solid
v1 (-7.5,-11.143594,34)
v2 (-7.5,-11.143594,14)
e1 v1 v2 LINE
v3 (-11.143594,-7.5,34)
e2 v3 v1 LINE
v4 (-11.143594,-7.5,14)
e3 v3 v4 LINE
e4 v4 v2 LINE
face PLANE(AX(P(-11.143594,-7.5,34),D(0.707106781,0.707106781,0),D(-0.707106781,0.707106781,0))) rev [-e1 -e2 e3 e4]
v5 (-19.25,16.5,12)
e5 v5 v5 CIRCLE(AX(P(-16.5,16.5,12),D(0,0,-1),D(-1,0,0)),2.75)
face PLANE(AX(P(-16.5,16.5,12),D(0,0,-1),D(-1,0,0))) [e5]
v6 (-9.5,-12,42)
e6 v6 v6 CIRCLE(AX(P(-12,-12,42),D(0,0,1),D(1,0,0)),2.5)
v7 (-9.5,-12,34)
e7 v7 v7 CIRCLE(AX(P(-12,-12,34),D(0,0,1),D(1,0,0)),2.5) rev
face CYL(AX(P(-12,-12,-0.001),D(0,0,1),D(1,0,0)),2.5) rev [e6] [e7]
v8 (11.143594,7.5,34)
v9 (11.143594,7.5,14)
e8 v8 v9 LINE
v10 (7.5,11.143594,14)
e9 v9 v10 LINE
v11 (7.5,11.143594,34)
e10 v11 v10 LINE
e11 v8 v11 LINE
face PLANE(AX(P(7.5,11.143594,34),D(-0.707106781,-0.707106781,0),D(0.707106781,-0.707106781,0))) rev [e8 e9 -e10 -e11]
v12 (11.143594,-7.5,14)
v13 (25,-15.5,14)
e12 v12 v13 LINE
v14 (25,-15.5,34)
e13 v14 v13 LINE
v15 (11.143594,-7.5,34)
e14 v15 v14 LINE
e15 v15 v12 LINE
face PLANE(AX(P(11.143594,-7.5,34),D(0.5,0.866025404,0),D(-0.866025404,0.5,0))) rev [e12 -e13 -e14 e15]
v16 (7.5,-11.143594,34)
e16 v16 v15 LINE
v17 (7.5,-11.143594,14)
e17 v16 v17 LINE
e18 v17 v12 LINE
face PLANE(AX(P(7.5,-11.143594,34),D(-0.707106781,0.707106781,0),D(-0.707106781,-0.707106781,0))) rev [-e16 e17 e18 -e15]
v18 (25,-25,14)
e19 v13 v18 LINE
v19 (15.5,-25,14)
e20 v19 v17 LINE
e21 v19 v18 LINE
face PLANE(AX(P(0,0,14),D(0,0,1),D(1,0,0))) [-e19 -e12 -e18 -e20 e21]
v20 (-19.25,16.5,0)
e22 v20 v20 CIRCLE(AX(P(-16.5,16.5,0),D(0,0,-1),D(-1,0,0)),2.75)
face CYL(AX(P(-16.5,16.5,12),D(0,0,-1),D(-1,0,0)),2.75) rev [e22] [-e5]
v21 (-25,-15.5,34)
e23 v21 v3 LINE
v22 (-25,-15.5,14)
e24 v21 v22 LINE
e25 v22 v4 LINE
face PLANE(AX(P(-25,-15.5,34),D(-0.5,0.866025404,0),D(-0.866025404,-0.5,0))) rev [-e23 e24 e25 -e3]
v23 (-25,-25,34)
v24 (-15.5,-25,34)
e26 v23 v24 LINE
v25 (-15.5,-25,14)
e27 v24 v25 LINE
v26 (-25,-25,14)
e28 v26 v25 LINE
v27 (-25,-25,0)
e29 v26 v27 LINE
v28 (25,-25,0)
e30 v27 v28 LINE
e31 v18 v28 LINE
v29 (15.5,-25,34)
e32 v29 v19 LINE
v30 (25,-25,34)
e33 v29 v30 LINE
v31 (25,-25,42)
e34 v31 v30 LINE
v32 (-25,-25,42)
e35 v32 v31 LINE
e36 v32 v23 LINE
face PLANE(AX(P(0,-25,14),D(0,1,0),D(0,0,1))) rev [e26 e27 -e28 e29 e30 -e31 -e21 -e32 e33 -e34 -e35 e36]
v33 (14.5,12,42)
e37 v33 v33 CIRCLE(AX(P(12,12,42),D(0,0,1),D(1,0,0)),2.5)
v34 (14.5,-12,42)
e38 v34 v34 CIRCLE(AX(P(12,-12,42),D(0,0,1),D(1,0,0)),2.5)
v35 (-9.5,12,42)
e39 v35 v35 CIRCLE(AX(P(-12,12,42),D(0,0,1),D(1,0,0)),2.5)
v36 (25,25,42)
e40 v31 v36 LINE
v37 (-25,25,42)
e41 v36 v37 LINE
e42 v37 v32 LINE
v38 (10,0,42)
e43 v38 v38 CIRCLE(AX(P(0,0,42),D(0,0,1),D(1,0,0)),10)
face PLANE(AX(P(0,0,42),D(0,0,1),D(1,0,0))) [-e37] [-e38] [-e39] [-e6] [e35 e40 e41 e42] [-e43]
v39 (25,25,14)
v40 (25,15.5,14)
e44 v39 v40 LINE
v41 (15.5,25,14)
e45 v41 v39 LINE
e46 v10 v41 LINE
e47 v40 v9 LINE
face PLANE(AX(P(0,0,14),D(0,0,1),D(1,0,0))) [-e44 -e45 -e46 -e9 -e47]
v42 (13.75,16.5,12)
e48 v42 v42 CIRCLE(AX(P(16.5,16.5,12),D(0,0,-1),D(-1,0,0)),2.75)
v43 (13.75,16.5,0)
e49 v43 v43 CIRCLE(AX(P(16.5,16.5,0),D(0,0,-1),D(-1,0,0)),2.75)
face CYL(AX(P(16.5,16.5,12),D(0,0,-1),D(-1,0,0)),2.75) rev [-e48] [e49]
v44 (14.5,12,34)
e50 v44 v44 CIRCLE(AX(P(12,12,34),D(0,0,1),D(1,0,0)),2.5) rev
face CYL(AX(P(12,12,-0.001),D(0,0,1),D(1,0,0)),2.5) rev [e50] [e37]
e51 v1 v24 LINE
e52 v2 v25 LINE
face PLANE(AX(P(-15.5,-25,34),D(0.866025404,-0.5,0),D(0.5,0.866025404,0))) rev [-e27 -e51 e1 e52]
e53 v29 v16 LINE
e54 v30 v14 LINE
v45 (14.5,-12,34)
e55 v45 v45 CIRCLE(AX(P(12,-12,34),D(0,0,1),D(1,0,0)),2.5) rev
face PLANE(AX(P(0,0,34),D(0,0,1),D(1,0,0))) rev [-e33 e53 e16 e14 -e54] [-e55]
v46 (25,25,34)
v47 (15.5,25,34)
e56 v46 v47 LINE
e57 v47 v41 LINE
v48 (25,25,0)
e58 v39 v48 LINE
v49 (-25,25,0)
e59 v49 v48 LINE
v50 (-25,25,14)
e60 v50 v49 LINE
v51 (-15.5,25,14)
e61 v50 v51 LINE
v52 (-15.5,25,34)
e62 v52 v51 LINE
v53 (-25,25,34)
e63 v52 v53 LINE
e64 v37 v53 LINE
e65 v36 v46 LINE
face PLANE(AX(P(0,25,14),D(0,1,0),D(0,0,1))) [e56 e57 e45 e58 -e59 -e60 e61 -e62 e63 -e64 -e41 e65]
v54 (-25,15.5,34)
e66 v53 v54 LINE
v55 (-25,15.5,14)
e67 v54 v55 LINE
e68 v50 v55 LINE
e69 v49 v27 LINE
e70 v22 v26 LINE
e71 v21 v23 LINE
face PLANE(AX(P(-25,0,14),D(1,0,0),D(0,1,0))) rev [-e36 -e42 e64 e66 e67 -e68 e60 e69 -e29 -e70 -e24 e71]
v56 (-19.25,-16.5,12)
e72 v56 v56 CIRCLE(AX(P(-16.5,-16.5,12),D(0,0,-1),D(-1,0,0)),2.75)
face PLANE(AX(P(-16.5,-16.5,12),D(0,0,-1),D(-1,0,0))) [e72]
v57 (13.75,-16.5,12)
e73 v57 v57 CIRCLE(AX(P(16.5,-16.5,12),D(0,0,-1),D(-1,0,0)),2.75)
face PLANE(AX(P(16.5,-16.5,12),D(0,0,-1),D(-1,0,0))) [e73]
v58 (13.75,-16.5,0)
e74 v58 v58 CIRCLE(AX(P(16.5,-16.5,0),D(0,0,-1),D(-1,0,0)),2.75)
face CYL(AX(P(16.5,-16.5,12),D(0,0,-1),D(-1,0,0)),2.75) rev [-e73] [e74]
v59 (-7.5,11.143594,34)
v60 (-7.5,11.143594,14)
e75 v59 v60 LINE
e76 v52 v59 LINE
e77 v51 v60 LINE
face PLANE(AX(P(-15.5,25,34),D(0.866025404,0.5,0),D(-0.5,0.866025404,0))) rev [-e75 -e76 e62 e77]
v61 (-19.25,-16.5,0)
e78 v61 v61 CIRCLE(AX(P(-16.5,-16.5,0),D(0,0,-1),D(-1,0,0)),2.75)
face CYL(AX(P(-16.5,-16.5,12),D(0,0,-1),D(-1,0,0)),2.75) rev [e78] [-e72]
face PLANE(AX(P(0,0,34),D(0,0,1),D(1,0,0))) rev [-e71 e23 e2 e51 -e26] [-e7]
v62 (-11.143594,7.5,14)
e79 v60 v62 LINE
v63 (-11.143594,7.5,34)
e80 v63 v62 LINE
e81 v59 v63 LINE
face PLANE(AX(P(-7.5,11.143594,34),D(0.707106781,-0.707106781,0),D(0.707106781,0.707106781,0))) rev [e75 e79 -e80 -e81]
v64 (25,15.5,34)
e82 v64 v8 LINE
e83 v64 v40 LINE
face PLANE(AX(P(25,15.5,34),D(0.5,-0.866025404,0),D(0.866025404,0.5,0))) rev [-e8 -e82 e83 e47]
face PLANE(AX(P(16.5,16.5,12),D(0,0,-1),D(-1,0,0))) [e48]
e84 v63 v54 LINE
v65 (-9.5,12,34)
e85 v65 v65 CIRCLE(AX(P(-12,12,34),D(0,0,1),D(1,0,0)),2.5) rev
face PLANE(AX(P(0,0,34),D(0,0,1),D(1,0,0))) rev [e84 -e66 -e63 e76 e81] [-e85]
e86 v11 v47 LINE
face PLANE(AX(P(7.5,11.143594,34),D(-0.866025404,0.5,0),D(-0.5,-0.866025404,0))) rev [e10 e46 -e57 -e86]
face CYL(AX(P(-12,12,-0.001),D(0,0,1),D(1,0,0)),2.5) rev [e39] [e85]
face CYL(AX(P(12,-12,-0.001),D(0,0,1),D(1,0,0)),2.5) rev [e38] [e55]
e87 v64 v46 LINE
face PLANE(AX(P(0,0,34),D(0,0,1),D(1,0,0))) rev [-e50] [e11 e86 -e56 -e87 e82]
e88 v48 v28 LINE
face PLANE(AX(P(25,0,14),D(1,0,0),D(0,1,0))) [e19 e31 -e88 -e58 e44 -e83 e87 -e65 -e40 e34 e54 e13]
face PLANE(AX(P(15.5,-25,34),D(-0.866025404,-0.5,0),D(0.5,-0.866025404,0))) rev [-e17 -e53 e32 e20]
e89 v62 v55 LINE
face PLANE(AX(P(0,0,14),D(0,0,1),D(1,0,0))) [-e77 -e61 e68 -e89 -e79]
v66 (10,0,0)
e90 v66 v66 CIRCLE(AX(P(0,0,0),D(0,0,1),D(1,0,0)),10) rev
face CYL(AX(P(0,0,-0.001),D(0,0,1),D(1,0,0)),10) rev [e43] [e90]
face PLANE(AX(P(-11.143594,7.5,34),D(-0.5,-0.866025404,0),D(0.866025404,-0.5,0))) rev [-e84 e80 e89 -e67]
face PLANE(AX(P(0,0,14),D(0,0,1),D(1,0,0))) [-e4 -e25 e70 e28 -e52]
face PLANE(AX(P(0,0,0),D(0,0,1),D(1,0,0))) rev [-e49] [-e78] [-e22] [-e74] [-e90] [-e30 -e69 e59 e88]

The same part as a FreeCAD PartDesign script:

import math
import FreeCAD as App
import Part
import Sketcher
Q = App.Units.Quantity


def add_polygon(sketch, points):
    """Adds a closed chain of lines whose ends are joined by coincident constraints."""
    first, n = sketch.GeometryCount, len(points)
    for a, b in zip(points, points[1:] + points[:1]):
        sketch.addGeometry(Part.LineSegment(App.Vector(*a, 0), App.Vector(*b, 0)), False)
    for i in range(n):
        sketch.addConstraint(Sketcher.Constraint("Coincident", first + i, 2, first + (i + 1) % n, 1))

doc = App.newDocument("Part")
body = doc.addObject("PartDesign::Body", "Body")

# Sketch on XY plane
sketch1 = body.newObject("Sketcher::SketchObject", "Sketch")
sketch1.AttachmentSupport = (doc.getObject("XY_Plane"), [""])
sketch1.MapMode = "FlatFace"
add_polygon(sketch1, [(-25, 25), (-25, -25), (25, -25), (25, 25)])  # lines 0-3
sketch1.addConstraint(Sketcher.Constraint("Vertical", 0))
sketch1.addConstraint(Sketcher.Constraint("Horizontal", 1))
sketch1.addConstraint(Sketcher.Constraint("Vertical", 2))
sketch1.addConstraint(Sketcher.Constraint("Horizontal", 3))
sketch1.addConstraint(Sketcher.Constraint("Symmetric", 0, 2, 2, 2, -1, 1))
sketch1.addConstraint(Sketcher.Constraint("Equal", 3, 0))
sketch1.addConstraint(Sketcher.Constraint("DistanceX", 1, 1, 1, 2, Q("50 mm")))
pad1 = body.newObject("PartDesign::Pad", "Pad")
pad1.Profile = sketch1
pad1.Length = 14

# Sketch on XY plane
sketch2 = body.newObject("Sketcher::SketchObject", "Sketch001")
sketch2.AttachmentSupport = (doc.getObject("XY_Plane"), [""])
sketch2.MapMode = "FlatFace"
sketch2.addGeometry(Part.Circle(App.Vector(16.5, 16.5, 0), App.Vector(0, 0, 1), 2.8), False)
sketch2.addGeometry(Part.Circle(App.Vector(-16.5, 16.5, 0), App.Vector(0, 0, 1), 2.8), False)
sketch2.addGeometry(Part.Circle(App.Vector(-16.5, -16.5, 0), App.Vector(0, 0, 1), 2.8), False)
sketch2.addGeometry(Part.Circle(App.Vector(16.5, -16.5, 0), App.Vector(0, 0, 1), 2.8), False)
sketch2.addConstraint(Sketcher.Constraint("Equal", 0, 1))
sketch2.addConstraint(Sketcher.Constraint("Equal", 1, 2))
sketch2.addConstraint(Sketcher.Constraint("Equal", 2, 3))
sketch2.addConstraint(Sketcher.Constraint("Symmetric", 0, 3, 2, 3, -1, 1))
sketch2.addConstraint(Sketcher.Constraint("Symmetric", 1, 3, 3, 3, -1, 1))
sketch2.addConstraint(Sketcher.Constraint("Symmetric", 0, 3, 1, 3, -2))
sketch2.addConstraint(Sketcher.Constraint("Diameter", 0, Q("5.5 mm")))
sketch2.addConstraint(Sketcher.Constraint("DistanceX", 1, 3, 0, 3, Q("33 mm")))
sketch2.addConstraint(Sketcher.Constraint("DistanceY", 2, 3, 1, 3, Q("33 mm")))
pocket1 = body.newObject("PartDesign::Pocket", "Pocket")
pocket1.Profile = sketch2
pocket1.Length = 12
pocket1.Reversed = True

# Sketch on XY plane
sketch3 = body.newObject("Sketcher::SketchObject", "Sketch002")
sketch3.AttachmentSupport = (doc.getObject("XY_Plane"), [""])
sketch3.MapMode = "FlatFace"
sketch3.AttachmentOffset = App.Placement(App.Vector(0, 0, 14), App.Rotation())
add_polygon(sketch3, [(25, 16), (11, 8), (8, 11), (16, 25), (-16, 25), (-8, 11), (-11, 8), (-25, 16), (-25, -16), (-11, -8), (-8, -11), (-16, -25), (16, -25), (8, -11), (11, -8), (25, -16)])  # lines 0-15
sketch3.addConstraint(Sketcher.Constraint("Horizontal", 3))
sketch3.addConstraint(Sketcher.Constraint("Vertical", 7))
sketch3.addConstraint(Sketcher.Constraint("Horizontal", 11))
sketch3.addConstraint(Sketcher.Constraint("Vertical", 15))
sketch3.addConstraint(Sketcher.Constraint("Symmetric", 0, 2, 8, 2, -1, 1))
sketch3.addConstraint(Sketcher.Constraint("Symmetric", 1, 2, 9, 2, -1, 1))
sketch3.addConstraint(Sketcher.Constraint("Symmetric", 2, 2, 10, 2, -1, 1))
sketch3.addConstraint(Sketcher.Constraint("Symmetric", 4, 2, 12, 2, -1, 1))
sketch3.addConstraint(Sketcher.Constraint("Symmetric", 5, 2, 13, 2, -1, 1))
sketch3.addConstraint(Sketcher.Constraint("Symmetric", 6, 2, 14, 2, -1, 1))
sketch3.addConstraint(Sketcher.Constraint("Symmetric", 1, 2, 4, 2, -2))
sketch3.addConstraint(Sketcher.Constraint("Symmetric", 0, 2, 5, 2, -2))
sketch3.addConstraint(Sketcher.Constraint("Perpendicular", 0, 4))
sketch3.addConstraint(Sketcher.Constraint("Perpendicular", 1, 5))
sketch3.addConstraint(Sketcher.Constraint("Perpendicular", 2, 6))
sketch3.addConstraint(Sketcher.Constraint("Perpendicular", 4, 8))
sketch3.addConstraint(Sketcher.Constraint("Perpendicular", 8, 12))
sketch3.addConstraint(Sketcher.Constraint("Horizontal", 7, 2, 14, 2))
sketch3.addConstraint(Sketcher.Constraint("Equal", 11, 7))
sketch3.addConstraint(Sketcher.Constraint("Equal", 0, 2))
sketch3.addConstraint(Sketcher.Constraint("DistanceX", 3, 2, 3, 1, Q("31 mm")))
sketch3.addConstraint(Sketcher.Constraint("Angle", 0, Q("-150 deg")))
sketch3.addConstraint(Sketcher.Constraint("Distance", 0, Q("16 mm")))
sketch3.addConstraint(Sketcher.Constraint("DistanceY", -1, 1, 2, 2, Q("25 mm")))
pad2 = body.newObject("PartDesign::Pad", "Pad001")
pad2.Profile = sketch3
pad2.Length = 20

# Sketch on XY plane
sketch4 = body.newObject("Sketcher::SketchObject", "Sketch003")
sketch4.AttachmentSupport = (doc.getObject("XY_Plane"), [""])
sketch4.MapMode = "FlatFace"
sketch4.AttachmentOffset = App.Placement(App.Vector(0, 0, 34), App.Rotation())
add_polygon(sketch4, [(-25, 25), (-25, -25), (25, -25), (25, 25)])  # lines 0-3
sketch4.addConstraint(Sketcher.Constraint("Vertical", 0))
sketch4.addConstraint(Sketcher.Constraint("Horizontal", 1))
sketch4.addConstraint(Sketcher.Constraint("Vertical", 2))
sketch4.addConstraint(Sketcher.Constraint("Horizontal", 3))
sketch4.addConstraint(Sketcher.Constraint("Symmetric", 0, 2, 2, 2, -1, 1))
sketch4.addConstraint(Sketcher.Constraint("Equal", 3, 0))
sketch4.addConstraint(Sketcher.Constraint("DistanceX", 1, 1, 1, 2, Q("50 mm")))
pad3 = body.newObject("PartDesign::Pad", "Pad002")
pad3.Profile = sketch4
pad3.Length = 8

# Sketch on XY plane
sketch5 = body.newObject("Sketcher::SketchObject", "Sketch004")
sketch5.AttachmentSupport = (doc.getObject("XY_Plane"), [""])
sketch5.MapMode = "FlatFace"
sketch5.AttachmentOffset = App.Placement(App.Vector(0, 0, 42), App.Rotation())
sketch5.addGeometry(Part.ArcOfCircle(Part.Circle(App.Vector(12, 12, 0), App.Vector(0, 0, 1), 2.5), math.radians(0), math.radians(180)), False)
sketch5.addGeometry(Part.LineSegment(App.Vector(9.5, 12, 0), App.Vector(12, 12, 0)), False)
sketch5.addGeometry(Part.LineSegment(App.Vector(12, 12, 0), App.Vector(12, 9.5, 0)), False)
sketch5.addGeometry(Part.ArcOfCircle(Part.Circle(App.Vector(12, 12, 0), App.Vector(0, 0, 1), 2.5), math.radians(-90), math.radians(0)), False)
sketch5.addConstraint(Sketcher.Constraint("Coincident", 0, 2, 1, 1))
sketch5.addConstraint(Sketcher.Constraint("Coincident", 1, 2, 2, 1))
sketch5.addConstraint(Sketcher.Constraint("Coincident", 2, 2, 3, 1))
sketch5.addConstraint(Sketcher.Constraint("Tangent", 3, 2, 0, 1))
sketch5.addConstraint(Sketcher.Constraint("Horizontal", 1))
sketch5.addConstraint(Sketcher.Constraint("Vertical", 2))
sketch5.addConstraint(Sketcher.Constraint("Coincident", 1, 2, 0, 3))
sketch5.addConstraint(Sketcher.Constraint("Equal", 0, 3))
sketch5.addConstraint(Sketcher.Constraint("Horizontal", 1, 2, 3, 2))
sketch5.addConstraint(Sketcher.Constraint("Radius", 0, Q("2.5 mm")))
sketch5.addConstraint(Sketcher.Constraint("DistanceX", -1, 1, 0, 3, Q("12 mm")))
sketch5.addConstraint(Sketcher.Constraint("DistanceY", -1, 1, 0, 3, Q("12 mm")))
pocket2 = body.newObject("PartDesign::Pocket", "Pocket001")
pocket2.Profile = sketch5
pocket2.Type = "UpToFirst"

# Sketch on XY plane
sketch6 = body.newObject("Sketcher::SketchObject", "Sketch005")
sketch6.AttachmentSupport = (doc.getObject("XY_Plane"), [""])
sketch6.MapMode = "FlatFace"
sketch6.AttachmentOffset = App.Placement(App.Vector(0, 0, 42), App.Rotation())
sketch6.addGeometry(Part.LineSegment(App.Vector(12, 12, 0), App.Vector(9.5, 12, 0)), False)
sketch6.addGeometry(Part.ArcOfCircle(Part.Circle(App.Vector(12, 12, 0), App.Vector(0, 0, 1), 2.5), math.radians(180), math.radians(270)), False)
sketch6.addGeometry(Part.LineSegment(App.Vector(12, 9.5, 0), App.Vector(12, 12, 0)), False)
sketch6.addConstraint(Sketcher.Constraint("Coincident", 0, 2, 1, 1))
sketch6.addConstraint(Sketcher.Constraint("Coincident", 1, 2, 2, 1))
sketch6.addConstraint(Sketcher.Constraint("Coincident", 2, 2, 0, 1))
sketch6.addConstraint(Sketcher.Constraint("Horizontal", 0))
sketch6.addConstraint(Sketcher.Constraint("Vertical", 2))
sketch6.addConstraint(Sketcher.Constraint("Coincident", 2, 2, 1, 3))
sketch6.addConstraint(Sketcher.Constraint("Radius", 1, Q("2.5 mm")))
sketch6.addConstraint(Sketcher.Constraint("DistanceX", -1, 1, 1, 3, Q("12 mm")))
sketch6.addConstraint(Sketcher.Constraint("DistanceY", -1, 1, 1, 3, Q("12 mm")))
pocket3 = body.newObject("PartDesign::Pocket", "Pocket002")
pocket3.Profile = sketch6
pocket3.Type = "UpToFirst"

# Sketch on XY plane
sketch7 = body.newObject("Sketcher::SketchObject", "Sketch006")
sketch7.AttachmentSupport = (doc.getObject("XY_Plane"), [""])
sketch7.MapMode = "FlatFace"
sketch7.AttachmentOffset = App.Placement(App.Vector(0, 0, 42), App.Rotation())
sketch7.addGeometry(Part.ArcOfCircle(Part.Circle(App.Vector(12, 12, 0), App.Vector(0, 0, 1), 2.5), math.radians(0), math.radians(180)), False)
sketch7.addGeometry(Part.LineSegment(App.Vector(9.5, 12, 0), App.Vector(12, 12, 0)), False)
sketch7.addGeometry(Part.LineSegment(App.Vector(12, 12, 0), App.Vector(12, 9.5, 0)), False)
sketch7.addGeometry(Part.ArcOfCircle(Part.Circle(App.Vector(12, 12, 0), App.Vector(0, 0, 1), 2.5), math.radians(-90), math.radians(0)), False)
sketch7.addConstraint(Sketcher.Constraint("Coincident", 0, 2, 1, 1))
sketch7.addConstraint(Sketcher.Constraint("Coincident", 1, 2, 2, 1))
sketch7.addConstraint(Sketcher.Constraint("Coincident", 2, 2, 3, 1))
sketch7.addConstraint(Sketcher.Constraint("Tangent", 3, 2, 0, 1))
sketch7.addConstraint(Sketcher.Constraint("Horizontal", 1))
sketch7.addConstraint(Sketcher.Constraint("Vertical", 2))
sketch7.addConstraint(Sketcher.Constraint("Coincident", 1, 2, 0, 3))
sketch7.addConstraint(Sketcher.Constraint("Equal", 0, 3))
sketch7.addConstraint(Sketcher.Constraint("Horizontal", 1, 2, 3, 2))
sketch7.addConstraint(Sketcher.Constraint("Radius", 0, Q("2.5 mm")))
sketch7.addConstraint(Sketcher.Constraint("DistanceX", -1, 1, 0, 3, Q("12 mm")))
sketch7.addConstraint(Sketcher.Constraint("DistanceY", -1, 1, 0, 3, Q("12 mm")))
pocket4 = body.newObject("PartDesign::Pocket", "Pocket003")
pocket4.Profile = sketch7
pocket4.Type = "UpToFirst"

# Sketch on XY plane
sketch8 = body.newObject("Sketcher::SketchObject", "Sketch007")
sketch8.AttachmentSupport = (doc.getObject("XY_Plane"), [""])
sketch8.MapMode = "FlatFace"
sketch8.AttachmentOffset = App.Placement(App.Vector(0, 0, 42), App.Rotation())
sketch8.addGeometry(Part.LineSegment(App.Vector(12, 12, 0), App.Vector(9.5, 12, 0)), False)
sketch8.addGeometry(Part.ArcOfCircle(Part.Circle(App.Vector(12, 12, 0), App.Vector(0, 0, 1), 2.5), math.radians(180), math.radians(270)), False)
sketch8.addGeometry(Part.LineSegment(App.Vector(12, 9.5, 0), App.Vector(12, 12, 0)), False)
sketch8.addConstraint(Sketcher.Constraint("Coincident", 0, 2, 1, 1))
sketch8.addConstraint(Sketcher.Constraint("Coincident", 1, 2, 2, 1))
sketch8.addConstraint(Sketcher.Constraint("Coincident", 2, 2, 0, 1))
sketch8.addConstraint(Sketcher.Constraint("Horizontal", 0))
sketch8.addConstraint(Sketcher.Constraint("Vertical", 2))
sketch8.addConstraint(Sketcher.Constraint("Coincident", 2, 2, 1, 3))
sketch8.addConstraint(Sketcher.Constraint("Radius", 1, Q("2.5 mm")))
sketch8.addConstraint(Sketcher.Constraint("DistanceX", -1, 1, 1, 3, Q("12 mm")))
sketch8.addConstraint(Sketcher.Constraint("DistanceY", -1, 1, 1, 3, Q("12 mm")))
pocket5 = body.newObject("PartDesign::Pocket", "Pocket004")
pocket5.Profile = sketch8
pocket5.Type = "UpToFirst"

# Sketch on XY plane
sketch9 = body.newObject("Sketcher::SketchObject", "Sketch008")
sketch9.AttachmentSupport = (doc.getObject("XY_Plane"), [""])
sketch9.MapMode = "FlatFace"
sketch9.AttachmentOffset = App.Placement(App.Vector(0, 0, 42), App.Rotation())
sketch9.addGeometry(Part.ArcOfCircle(Part.Circle(App.Vector(12, -12, 0), App.Vector(0, 0, 1), 2.5), math.radians(0), math.radians(90)), False)
sketch9.addGeometry(Part.LineSegment(App.Vector(12, -9.5, 0), App.Vector(12, -12, 0)), False)
sketch9.addGeometry(Part.LineSegment(App.Vector(12, -12, 0), App.Vector(9.5, -12, 0)), False)
sketch9.addGeometry(Part.ArcOfCircle(Part.Circle(App.Vector(12, -12, 0), App.Vector(0, 0, 1), 2.5), math.radians(180), math.radians(360)), False)
sketch9.addConstraint(Sketcher.Constraint("Coincident", 0, 2, 1, 1))
sketch9.addConstraint(Sketcher.Constraint("Coincident", 1, 2, 2, 1))
sketch9.addConstraint(Sketcher.Constraint("Coincident", 2, 2, 3, 1))
sketch9.addConstraint(Sketcher.Constraint("Tangent", 3, 2, 0, 1))
sketch9.addConstraint(Sketcher.Constraint("Vertical", 1))
sketch9.addConstraint(Sketcher.Constraint("Horizontal", 2))
sketch9.addConstraint(Sketcher.Constraint("Coincident", 1, 2, 0, 3))
sketch9.addConstraint(Sketcher.Constraint("Equal", 0, 3))
sketch9.addConstraint(Sketcher.Constraint("Horizontal", 2, 2, 3, 2))
sketch9.addConstraint(Sketcher.Constraint("Radius", 0, Q("2.5 mm")))
sketch9.addConstraint(Sketcher.Constraint("DistanceX", -1, 1, 0, 3, Q("12 mm")))
sketch9.addConstraint(Sketcher.Constraint("DistanceY", 0, 3, -1, 1, Q("12 mm")))
pocket6 = body.newObject("PartDesign::Pocket", "Pocket005")
pocket6.Profile = sketch9
pocket6.Type = "UpToFirst"

# Sketch on XY plane
sketch10 = body.newObject("Sketcher::SketchObject", "Sketch009")
sketch10.AttachmentSupport = (doc.getObject("XY_Plane"), [""])
sketch10.MapMode = "FlatFace"
sketch10.AttachmentOffset = App.Placement(App.Vector(0, 0, 42), App.Rotation())
sketch10.addGeometry(Part.LineSegment(App.Vector(12, -12, 0), App.Vector(12, -9.5, 0)), False)
sketch10.addGeometry(Part.ArcOfCircle(Part.Circle(App.Vector(12, -12, 0), App.Vector(0, 0, 1), 2.5), math.radians(90), math.radians(180)), False)
sketch10.addGeometry(Part.LineSegment(App.Vector(9.5, -12, 0), App.Vector(12, -12, 0)), False)
sketch10.addConstraint(Sketcher.Constraint("Coincident", 0, 2, 1, 1))
sketch10.addConstraint(Sketcher.Constraint("Coincident", 1, 2, 2, 1))
sketch10.addConstraint(Sketcher.Constraint("Coincident", 2, 2, 0, 1))
sketch10.addConstraint(Sketcher.Constraint("Vertical", 0))
sketch10.addConstraint(Sketcher.Constraint("Horizontal", 2))
sketch10.addConstraint(Sketcher.Constraint("Coincident", 2, 2, 1, 3))
sketch10.addConstraint(Sketcher.Constraint("Radius", 1, Q("2.5 mm")))
sketch10.addConstraint(Sketcher.Constraint("DistanceX", -1, 1, 1, 3, Q("12 mm")))
sketch10.addConstraint(Sketcher.Constraint("DistanceY", 1, 3, -1, 1, Q("12 mm")))
pocket7 = body.newObject("PartDesign::Pocket", "Pocket006")
pocket7.Profile = sketch10
pocket7.Type = "UpToFirst"

# Sketch on XY plane
sketch11 = body.newObject("Sketcher::SketchObject", "Sketch010")
sketch11.AttachmentSupport = (doc.getObject("XY_Plane"), [""])
sketch11.MapMode = "FlatFace"
sketch11.AttachmentOffset = App.Placement(App.Vector(0, 0, 42), App.Rotation())
sketch11.addGeometry(Part.ArcOfCircle(Part.Circle(App.Vector(12, -12, 0), App.Vector(0, 0, 1), 2.5), math.radians(0), math.radians(90)), False)
sketch11.addGeometry(Part.LineSegment(App.Vector(12, -9.5, 0), App.Vector(12, -12, 0)), False)
sketch11.addGeometry(Part.LineSegment(App.Vector(12, -12, 0), App.Vector(9.5, -12, 0)), False)
sketch11.addGeometry(Part.ArcOfCircle(Part.Circle(App.Vector(12, -12, 0), App.Vector(0, 0, 1), 2.5), math.radians(180), math.radians(360)), False)
sketch11.addConstraint(Sketcher.Constraint("Coincident", 0, 2, 1, 1))
sketch11.addConstraint(Sketcher.Constraint("Coincident", 1, 2, 2, 1))
sketch11.addConstraint(Sketcher.Constraint("Coincident", 2, 2, 3, 1))
sketch11.addConstraint(Sketcher.Constraint("Tangent", 3, 2, 0, 1))
sketch11.addConstraint(Sketcher.Constraint("Vertical", 1))
sketch11.addConstraint(Sketcher.Constraint("Horizontal", 2))
sketch11.addConstraint(Sketcher.Constraint("Coincident", 1, 2, 0, 3))
sketch11.addConstraint(Sketcher.Constraint("Equal", 0, 3))
sketch11.addConstraint(Sketcher.Constraint("Horizontal", 2, 2, 3, 2))
sketch11.addConstraint(Sketcher.Constraint("Radius", 0, Q("2.5 mm")))
sketch11.addConstraint(Sketcher.Constraint("DistanceX", -1, 1, 0, 3, Q("12 mm")))
sketch11.addConstraint(Sketcher.Constraint("DistanceY", 0, 3, -1, 1, Q("12 mm")))
pocket8 = body.newObject("PartDesign::Pocket", "Pocket007")
pocket8.Profile = sketch11
pocket8.Type = "UpToFirst"

# Sketch on XY plane
sketch12 = body.newObject("Sketcher::SketchObject", "Sketch011")
sketch12.AttachmentSupport = (doc.getObject("XY_Plane"), [""])
sketch12.MapMode = "FlatFace"
sketch12.AttachmentOffset = App.Placement(App.Vector(0, 0, 42), App.Rotation())
sketch12.addGeometry(Part.LineSegment(App.Vector(12, -12, 0), App.Vector(12, -9.5, 0)), False)
sketch12.addGeometry(Part.ArcOfCircle(Part.Circle(App.Vector(12, -12, 0), App.Vector(0, 0, 1), 2.5), math.radians(90), math.radians(180)), False)
sketch12.addGeometry(Part.LineSegment(App.Vector(9.5, -12, 0), App.Vector(12, -12, 0)), False)
sketch12.addConstraint(Sketcher.Constraint("Coincident", 0, 2, 1, 1))
sketch12.addConstraint(Sketcher.Constraint("Coincident", 1, 2, 2, 1))
sketch12.addConstraint(Sketcher.Constraint("Coincident", 2, 2, 0, 1))
sketch12.addConstraint(Sketcher.Constraint("Vertical", 0))
sketch12.addConstraint(Sketcher.Constraint("Horizontal", 2))
sketch12.addConstraint(Sketcher.Constraint("Coincident", 2, 2, 1, 3))
sketch12.addConstraint(Sketcher.Constraint("Radius", 1, Q("2.5 mm")))
sketch12.addConstraint(Sketcher.Constraint("DistanceX", -1, 1, 1, 3, Q("12 mm")))
sketch12.addConstraint(Sketcher.Constraint("DistanceY", 1, 3, -1, 1, Q("12 mm")))
pocket9 = body.newObject("PartDesign::Pocket", "Pocket008")
pocket9.Profile = sketch12
pocket9.Type = "UpToFirst"

# Sketch on XY plane
sketch13 = body.newObject("Sketcher::SketchObject", "Sketch012")
sketch13.AttachmentSupport = (doc.getObject("XY_Plane"), [""])
sketch13.MapMode = "FlatFace"
sketch13.AttachmentOffset = App.Placement(App.Vector(0, 0, 42), App.Rotation())
sketch13.addGeometry(Part.ArcOfCircle(Part.Circle(App.Vector(-12, -12, 0), App.Vector(0, 0, 1), 2.5), math.radians(0), math.radians(90)), False)
sketch13.addGeometry(Part.LineSegment(App.Vector(-12, -9.5, 0), App.Vector(-12, -12, 0)), False)
sketch13.addGeometry(Part.LineSegment(App.Vector(-12, -12, 0), App.Vector(-9.5, -12, 0)), False)
sketch13.addConstraint(Sketcher.Constraint("Coincident", 0, 2, 1, 1))
sketch13.addConstraint(Sketcher.Constraint("Coincident", 1, 2, 2, 1))
sketch13.addConstraint(Sketcher.Constraint("Coincident", 2, 2, 0, 1))
sketch13.addConstraint(Sketcher.Constraint("Vertical", 1))
sketch13.addConstraint(Sketcher.Constraint("Horizontal", 2))
sketch13.addConstraint(Sketcher.Constraint("Coincident", 1, 2, 0, 3))
sketch13.addConstraint(Sketcher.Constraint("Radius", 0, Q("2.5 mm")))
sketch13.addConstraint(Sketcher.Constraint("DistanceX", 0, 3, -1, 1, Q("12 mm")))
sketch13.addConstraint(Sketcher.Constraint("DistanceY", 0, 3, -1, 1, Q("12 mm")))
pocket10 = body.newObject("PartDesign::Pocket", "Pocket009")
pocket10.Profile = sketch13
pocket10.Type = "UpToFirst"

# Sketch on XY plane
sketch14 = body.newObject("Sketcher::SketchObject", "Sketch013")
sketch14.AttachmentSupport = (doc.getObject("XY_Plane"), [""])
sketch14.MapMode = "FlatFace"
sketch14.AttachmentOffset = App.Placement(App.Vector(0, 0, 42), App.Rotation())
sketch14.addGeometry(Part.LineSegment(App.Vector(-12, -12, 0), App.Vector(-12, -9.5, 0)), False)
sketch14.addGeometry(Part.ArcOfCircle(Part.Circle(App.Vector(-12, -12, 0), App.Vector(0, 0, 1), 2.5), math.radians(90), math.radians(360)), False)
sketch14.addGeometry(Part.LineSegment(App.Vector(-9.5, -12, 0), App.Vector(-12, -12, 0)), False)
sketch14.addConstraint(Sketcher.Constraint("Coincident", 0, 2, 1, 1))
sketch14.addConstraint(Sketcher.Constraint("Coincident", 1, 2, 2, 1))
sketch14.addConstraint(Sketcher.Constraint("Coincident", 2, 2, 0, 1))
sketch14.addConstraint(Sketcher.Constraint("Vertical", 0))
sketch14.addConstraint(Sketcher.Constraint("Horizontal", 2))
sketch14.addConstraint(Sketcher.Constraint("Coincident", 2, 2, 1, 3))
sketch14.addConstraint(Sketcher.Constraint("Radius", 1, Q("2.5 mm")))
sketch14.addConstraint(Sketcher.Constraint("DistanceX", 1, 3, -1, 1, Q("12 mm")))
sketch14.addConstraint(Sketcher.Constraint("DistanceY", 1, 3, -1, 1, Q("12 mm")))
pocket11 = body.newObject("PartDesign::Pocket", "Pocket010")
pocket11.Profile = sketch14
pocket11.Type = "UpToFirst"

# Sketch on XY plane
sketch15 = body.newObject("Sketcher::SketchObject", "Sketch014")
sketch15.AttachmentSupport = (doc.getObject("XY_Plane"), [""])
sketch15.MapMode = "FlatFace"
sketch15.AttachmentOffset = App.Placement(App.Vector(0, 0, 42), App.Rotation())
sketch15.addGeometry(Part.ArcOfCircle(Part.Circle(App.Vector(-12, -12, 0), App.Vector(0, 0, 1), 2.5), math.radians(0), math.radians(90)), False)
sketch15.addGeometry(Part.LineSegment(App.Vector(-12, -9.5, 0), App.Vector(-12, -12, 0)), False)
sketch15.addGeometry(Part.LineSegment(App.Vector(-12, -12, 0), App.Vector(-9.5, -12, 0)), False)
sketch15.addConstraint(Sketcher.Constraint("Coincident", 0, 2, 1, 1))
sketch15.addConstraint(Sketcher.Constraint("Coincident", 1, 2, 2, 1))
sketch15.addConstraint(Sketcher.Constraint("Coincident", 2, 2, 0, 1))
sketch15.addConstraint(Sketcher.Constraint("Vertical", 1))
sketch15.addConstraint(Sketcher.Constraint("Horizontal", 2))
sketch15.addConstraint(Sketcher.Constraint("Coincident", 1, 2, 0, 3))
sketch15.addConstraint(Sketcher.Constraint("Radius", 0, Q("2.5 mm")))
sketch15.addConstraint(Sketcher.Constraint("DistanceX", 0, 3, -1, 1, Q("12 mm")))
sketch15.addConstraint(Sketcher.Constraint("DistanceY", 0, 3, -1, 1, Q("12 mm")))
pocket12 = body.newObject("PartDesign::Pocket", "Pocket011")
pocket12.Profile = sketch15
pocket12.Type = "UpToFirst"

# Sketch on XY plane
sketch16 = body.newObject("Sketcher::SketchObject", "Sketch015")
sketch16.AttachmentSupport = (doc.getObject("XY_Plane"), [""])
sketch16.MapMode = "FlatFace"
sketch16.AttachmentOffset = App.Placement(App.Vector(0, 0, 42), App.Rotation())
sketch16.addGeometry(Part.LineSegment(App.Vector(-12, -12, 0), App.Vector(-12, -9.5, 0)), False)
sketch16.addGeometry(Part.ArcOfCircle(Part.Circle(App.Vector(-12, -12, 0), App.Vector(0, 0, 1), 2.5), math.radians(90), math.radians(360)), False)
sketch16.addGeometry(Part.LineSegment(App.Vector(-9.5, -12, 0), App.Vector(-12, -12, 0)), False)
sketch16.addConstraint(Sketcher.Constraint("Coincident", 0, 2, 1, 1))
sketch16.addConstraint(Sketcher.Constraint("Coincident", 1, 2, 2, 1))
sketch16.addConstraint(Sketcher.Constraint("Coincident", 2, 2, 0, 1))
sketch16.addConstraint(Sketcher.Constraint("Vertical", 0))
sketch16.addConstraint(Sketcher.Constraint("Horizontal", 2))
sketch16.addConstraint(Sketcher.Constraint("Coincident", 2, 2, 1, 3))
sketch16.addConstraint(Sketcher.Constraint("Radius", 1, Q("2.5 mm")))
sketch16.addConstraint(Sketcher.Constraint("DistanceX", 1, 3, -1, 1, Q("12 mm")))
sketch16.addConstraint(Sketcher.Constraint("DistanceY", 1, 3, -1, 1, Q("12 mm")))
pocket13 = body.newObject("PartDesign::Pocket", "Pocket012")
pocket13.Profile = sketch16
pocket13.Type = "UpToFirst"

# Sketch on XY plane
sketch17 = body.newObject("Sketcher::SketchObject", "Sketch016")
sketch17.AttachmentSupport = (doc.getObject("XY_Plane"), [""])
sketch17.MapMode = "FlatFace"
sketch17.AttachmentOffset = App.Placement(App.Vector(0, 0, 42), App.Rotation())
sketch17.addGeometry(Part.LineSegment(App.Vector(-12, 9.5, 0), App.Vector(-12, 12, 0)), False)
sketch17.addGeometry(Part.LineSegment(App.Vector(-12, 12, 0), App.Vector(-9.5, 12, 0)), False)
sketch17.addGeometry(Part.ArcOfCircle(Part.Circle(App.Vector(-12, 12, 0), App.Vector(0, 0, 1), 2.5), math.radians(0), math.radians(270)), False)
sketch17.addConstraint(Sketcher.Constraint("Coincident", 0, 2, 1, 1))
sketch17.addConstraint(Sketcher.Constraint("Coincident", 1, 2, 2, 1))
sketch17.addConstraint(Sketcher.Constraint("Coincident", 2, 2, 0, 1))
sketch17.addConstraint(Sketcher.Constraint("Vertical", 0))
sketch17.addConstraint(Sketcher.Constraint("Horizontal", 1))
sketch17.addConstraint(Sketcher.Constraint("Coincident", 0, 2, 2, 3))
sketch17.addConstraint(Sketcher.Constraint("Radius", 2, Q("2.5 mm")))
sketch17.addConstraint(Sketcher.Constraint("DistanceX", 2, 3, -1, 1, Q("12 mm")))
sketch17.addConstraint(Sketcher.Constraint("DistanceY", -1, 1, 2, 3, Q("12 mm")))
pocket14 = body.newObject("PartDesign::Pocket", "Pocket013")
pocket14.Profile = sketch17
pocket14.Type = "UpToFirst"

# Sketch on XY plane
sketch18 = body.newObject("Sketcher::SketchObject", "Sketch017")
sketch18.AttachmentSupport = (doc.getObject("XY_Plane"), [""])
sketch18.MapMode = "FlatFace"
sketch18.AttachmentOffset = App.Placement(App.Vector(0, 0, 42), App.Rotation())
sketch18.addGeometry(Part.LineSegment(App.Vector(-9.5, 12, 0), App.Vector(-12, 12, 0)), False)
sketch18.addGeometry(Part.LineSegment(App.Vector(-12, 12, 0), App.Vector(-12, 9.5, 0)), False)
sketch18.addGeometry(Part.ArcOfCircle(Part.Circle(App.Vector(-12, 12, 0), App.Vector(0, 0, 1), 2.5), math.radians(-90), math.radians(0)), False)
sketch18.addConstraint(Sketcher.Constraint("Coincident", 0, 2, 1, 1))
sketch18.addConstraint(Sketcher.Constraint("Coincident", 1, 2, 2, 1))
sketch18.addConstraint(Sketcher.Constraint("Coincident", 2, 2, 0, 1))
sketch18.addConstraint(Sketcher.Constraint("Horizontal", 0))
sketch18.addConstraint(Sketcher.Constraint("Vertical", 1))
sketch18.addConstraint(Sketcher.Constraint("Coincident", 0, 2, 2, 3))
sketch18.addConstraint(Sketcher.Constraint("Radius", 2, Q("2.5 mm")))
sketch18.addConstraint(Sketcher.Constraint("DistanceX", 2, 3, -1, 1, Q("12 mm")))
sketch18.addConstraint(Sketcher.Constraint("DistanceY", -1, 1, 2, 3, Q("12 mm")))
pocket15 = body.newObject("PartDesign::Pocket", "Pocket014")
pocket15.Profile = sketch18
pocket15.Type = "UpToFirst"

# Sketch on XY plane
sketch19 = body.newObject("Sketcher::SketchObject", "Sketch018")
sketch19.AttachmentSupport = (doc.getObject("XY_Plane"), [""])
sketch19.MapMode = "FlatFace"
sketch19.AttachmentOffset = App.Placement(App.Vector(0, 0, 42), App.Rotation())
sketch19.addGeometry(Part.LineSegment(App.Vector(-12, 9.5, 0), App.Vector(-12, 12, 0)), False)
sketch19.addGeometry(Part.LineSegment(App.Vector(-12, 12, 0), App.Vector(-9.5, 12, 0)), False)
sketch19.addGeometry(Part.ArcOfCircle(Part.Circle(App.Vector(-12, 12, 0), App.Vector(0, 0, 1), 2.5), math.radians(0), math.radians(270)), False)
sketch19.addConstraint(Sketcher.Constraint("Coincident", 0, 2, 1, 1))
sketch19.addConstraint(Sketcher.Constraint("Coincident", 1, 2, 2, 1))
sketch19.addConstraint(Sketcher.Constraint("Coincident", 2, 2, 0, 1))
sketch19.addConstraint(Sketcher.Constraint("Vertical", 0))
sketch19.addConstraint(Sketcher.Constraint("Horizontal", 1))
sketch19.addConstraint(Sketcher.Constraint("Coincident", 0, 2, 2, 3))
sketch19.addConstraint(Sketcher.Constraint("Radius", 2, Q("2.5 mm")))
sketch19.addConstraint(Sketcher.Constraint("DistanceX", 2, 3, -1, 1, Q("12 mm")))
sketch19.addConstraint(Sketcher.Constraint("DistanceY", -1, 1, 2, 3, Q("12 mm")))
pocket16 = body.newObject("PartDesign::Pocket", "Pocket015")
pocket16.Profile = sketch19
pocket16.Type = "UpToFirst"

# Sketch on XY plane
sketch20 = body.newObject("Sketcher::SketchObject", "Sketch019")
sketch20.AttachmentSupport = (doc.getObject("XY_Plane"), [""])
sketch20.MapMode = "FlatFace"
sketch20.AttachmentOffset = App.Placement(App.Vector(0, 0, 42), App.Rotation())
sketch20.addGeometry(Part.LineSegment(App.Vector(-9.5, 12, 0), App.Vector(-12, 12, 0)), False)
sketch20.addGeometry(Part.LineSegment(App.Vector(-12, 12, 0), App.Vector(-12, 9.5, 0)), False)
sketch20.addGeometry(Part.ArcOfCircle(Part.Circle(App.Vector(-12, 12, 0), App.Vector(0, 0, 1), 2.5), math.radians(-90), math.radians(0)), False)
sketch20.addConstraint(Sketcher.Constraint("Coincident", 0, 2, 1, 1))
sketch20.addConstraint(Sketcher.Constraint("Coincident", 1, 2, 2, 1))
sketch20.addConstraint(Sketcher.Constraint("Coincident", 2, 2, 0, 1))
sketch20.addConstraint(Sketcher.Constraint("Horizontal", 0))
sketch20.addConstraint(Sketcher.Constraint("Vertical", 1))
sketch20.addConstraint(Sketcher.Constraint("Coincident", 0, 2, 2, 3))
sketch20.addConstraint(Sketcher.Constraint("Radius", 2, Q("2.5 mm")))
sketch20.addConstraint(Sketcher.Constraint("DistanceX", 2, 3, -1, 1, Q("12 mm")))
sketch20.addConstraint(Sketcher.Constraint("DistanceY", -1, 1, 2, 3, Q("12 mm")))
pocket17 = body.newObject("PartDesign::Pocket", "Pocket016")
pocket17.Profile = sketch20
pocket17.Type = "UpToFirst"

# Sketch on XY plane
sketch21 = body.newObject("Sketcher::SketchObject", "Sketch020")
sketch21.AttachmentSupport = (doc.getObject("XY_Plane"), [""])
sketch21.MapMode = "FlatFace"
sketch21.AttachmentOffset = App.Placement(App.Vector(0, 0, 42), App.Rotation())
sketch21.addGeometry(Part.Circle(App.Vector(0, 0, 0), App.Vector(0, 0, 1), 10), False)
sketch21.addConstraint(Sketcher.Constraint("Coincident", 0, 3, -1, 1))
sketch21.addConstraint(Sketcher.Constraint("Diameter", 0, Q("20 mm")))
pocket18 = body.newObject("PartDesign::Pocket", "Pocket017")
pocket18.Profile = sketch21
pocket18.Type = "UpToFirst"

doc.recompute()
